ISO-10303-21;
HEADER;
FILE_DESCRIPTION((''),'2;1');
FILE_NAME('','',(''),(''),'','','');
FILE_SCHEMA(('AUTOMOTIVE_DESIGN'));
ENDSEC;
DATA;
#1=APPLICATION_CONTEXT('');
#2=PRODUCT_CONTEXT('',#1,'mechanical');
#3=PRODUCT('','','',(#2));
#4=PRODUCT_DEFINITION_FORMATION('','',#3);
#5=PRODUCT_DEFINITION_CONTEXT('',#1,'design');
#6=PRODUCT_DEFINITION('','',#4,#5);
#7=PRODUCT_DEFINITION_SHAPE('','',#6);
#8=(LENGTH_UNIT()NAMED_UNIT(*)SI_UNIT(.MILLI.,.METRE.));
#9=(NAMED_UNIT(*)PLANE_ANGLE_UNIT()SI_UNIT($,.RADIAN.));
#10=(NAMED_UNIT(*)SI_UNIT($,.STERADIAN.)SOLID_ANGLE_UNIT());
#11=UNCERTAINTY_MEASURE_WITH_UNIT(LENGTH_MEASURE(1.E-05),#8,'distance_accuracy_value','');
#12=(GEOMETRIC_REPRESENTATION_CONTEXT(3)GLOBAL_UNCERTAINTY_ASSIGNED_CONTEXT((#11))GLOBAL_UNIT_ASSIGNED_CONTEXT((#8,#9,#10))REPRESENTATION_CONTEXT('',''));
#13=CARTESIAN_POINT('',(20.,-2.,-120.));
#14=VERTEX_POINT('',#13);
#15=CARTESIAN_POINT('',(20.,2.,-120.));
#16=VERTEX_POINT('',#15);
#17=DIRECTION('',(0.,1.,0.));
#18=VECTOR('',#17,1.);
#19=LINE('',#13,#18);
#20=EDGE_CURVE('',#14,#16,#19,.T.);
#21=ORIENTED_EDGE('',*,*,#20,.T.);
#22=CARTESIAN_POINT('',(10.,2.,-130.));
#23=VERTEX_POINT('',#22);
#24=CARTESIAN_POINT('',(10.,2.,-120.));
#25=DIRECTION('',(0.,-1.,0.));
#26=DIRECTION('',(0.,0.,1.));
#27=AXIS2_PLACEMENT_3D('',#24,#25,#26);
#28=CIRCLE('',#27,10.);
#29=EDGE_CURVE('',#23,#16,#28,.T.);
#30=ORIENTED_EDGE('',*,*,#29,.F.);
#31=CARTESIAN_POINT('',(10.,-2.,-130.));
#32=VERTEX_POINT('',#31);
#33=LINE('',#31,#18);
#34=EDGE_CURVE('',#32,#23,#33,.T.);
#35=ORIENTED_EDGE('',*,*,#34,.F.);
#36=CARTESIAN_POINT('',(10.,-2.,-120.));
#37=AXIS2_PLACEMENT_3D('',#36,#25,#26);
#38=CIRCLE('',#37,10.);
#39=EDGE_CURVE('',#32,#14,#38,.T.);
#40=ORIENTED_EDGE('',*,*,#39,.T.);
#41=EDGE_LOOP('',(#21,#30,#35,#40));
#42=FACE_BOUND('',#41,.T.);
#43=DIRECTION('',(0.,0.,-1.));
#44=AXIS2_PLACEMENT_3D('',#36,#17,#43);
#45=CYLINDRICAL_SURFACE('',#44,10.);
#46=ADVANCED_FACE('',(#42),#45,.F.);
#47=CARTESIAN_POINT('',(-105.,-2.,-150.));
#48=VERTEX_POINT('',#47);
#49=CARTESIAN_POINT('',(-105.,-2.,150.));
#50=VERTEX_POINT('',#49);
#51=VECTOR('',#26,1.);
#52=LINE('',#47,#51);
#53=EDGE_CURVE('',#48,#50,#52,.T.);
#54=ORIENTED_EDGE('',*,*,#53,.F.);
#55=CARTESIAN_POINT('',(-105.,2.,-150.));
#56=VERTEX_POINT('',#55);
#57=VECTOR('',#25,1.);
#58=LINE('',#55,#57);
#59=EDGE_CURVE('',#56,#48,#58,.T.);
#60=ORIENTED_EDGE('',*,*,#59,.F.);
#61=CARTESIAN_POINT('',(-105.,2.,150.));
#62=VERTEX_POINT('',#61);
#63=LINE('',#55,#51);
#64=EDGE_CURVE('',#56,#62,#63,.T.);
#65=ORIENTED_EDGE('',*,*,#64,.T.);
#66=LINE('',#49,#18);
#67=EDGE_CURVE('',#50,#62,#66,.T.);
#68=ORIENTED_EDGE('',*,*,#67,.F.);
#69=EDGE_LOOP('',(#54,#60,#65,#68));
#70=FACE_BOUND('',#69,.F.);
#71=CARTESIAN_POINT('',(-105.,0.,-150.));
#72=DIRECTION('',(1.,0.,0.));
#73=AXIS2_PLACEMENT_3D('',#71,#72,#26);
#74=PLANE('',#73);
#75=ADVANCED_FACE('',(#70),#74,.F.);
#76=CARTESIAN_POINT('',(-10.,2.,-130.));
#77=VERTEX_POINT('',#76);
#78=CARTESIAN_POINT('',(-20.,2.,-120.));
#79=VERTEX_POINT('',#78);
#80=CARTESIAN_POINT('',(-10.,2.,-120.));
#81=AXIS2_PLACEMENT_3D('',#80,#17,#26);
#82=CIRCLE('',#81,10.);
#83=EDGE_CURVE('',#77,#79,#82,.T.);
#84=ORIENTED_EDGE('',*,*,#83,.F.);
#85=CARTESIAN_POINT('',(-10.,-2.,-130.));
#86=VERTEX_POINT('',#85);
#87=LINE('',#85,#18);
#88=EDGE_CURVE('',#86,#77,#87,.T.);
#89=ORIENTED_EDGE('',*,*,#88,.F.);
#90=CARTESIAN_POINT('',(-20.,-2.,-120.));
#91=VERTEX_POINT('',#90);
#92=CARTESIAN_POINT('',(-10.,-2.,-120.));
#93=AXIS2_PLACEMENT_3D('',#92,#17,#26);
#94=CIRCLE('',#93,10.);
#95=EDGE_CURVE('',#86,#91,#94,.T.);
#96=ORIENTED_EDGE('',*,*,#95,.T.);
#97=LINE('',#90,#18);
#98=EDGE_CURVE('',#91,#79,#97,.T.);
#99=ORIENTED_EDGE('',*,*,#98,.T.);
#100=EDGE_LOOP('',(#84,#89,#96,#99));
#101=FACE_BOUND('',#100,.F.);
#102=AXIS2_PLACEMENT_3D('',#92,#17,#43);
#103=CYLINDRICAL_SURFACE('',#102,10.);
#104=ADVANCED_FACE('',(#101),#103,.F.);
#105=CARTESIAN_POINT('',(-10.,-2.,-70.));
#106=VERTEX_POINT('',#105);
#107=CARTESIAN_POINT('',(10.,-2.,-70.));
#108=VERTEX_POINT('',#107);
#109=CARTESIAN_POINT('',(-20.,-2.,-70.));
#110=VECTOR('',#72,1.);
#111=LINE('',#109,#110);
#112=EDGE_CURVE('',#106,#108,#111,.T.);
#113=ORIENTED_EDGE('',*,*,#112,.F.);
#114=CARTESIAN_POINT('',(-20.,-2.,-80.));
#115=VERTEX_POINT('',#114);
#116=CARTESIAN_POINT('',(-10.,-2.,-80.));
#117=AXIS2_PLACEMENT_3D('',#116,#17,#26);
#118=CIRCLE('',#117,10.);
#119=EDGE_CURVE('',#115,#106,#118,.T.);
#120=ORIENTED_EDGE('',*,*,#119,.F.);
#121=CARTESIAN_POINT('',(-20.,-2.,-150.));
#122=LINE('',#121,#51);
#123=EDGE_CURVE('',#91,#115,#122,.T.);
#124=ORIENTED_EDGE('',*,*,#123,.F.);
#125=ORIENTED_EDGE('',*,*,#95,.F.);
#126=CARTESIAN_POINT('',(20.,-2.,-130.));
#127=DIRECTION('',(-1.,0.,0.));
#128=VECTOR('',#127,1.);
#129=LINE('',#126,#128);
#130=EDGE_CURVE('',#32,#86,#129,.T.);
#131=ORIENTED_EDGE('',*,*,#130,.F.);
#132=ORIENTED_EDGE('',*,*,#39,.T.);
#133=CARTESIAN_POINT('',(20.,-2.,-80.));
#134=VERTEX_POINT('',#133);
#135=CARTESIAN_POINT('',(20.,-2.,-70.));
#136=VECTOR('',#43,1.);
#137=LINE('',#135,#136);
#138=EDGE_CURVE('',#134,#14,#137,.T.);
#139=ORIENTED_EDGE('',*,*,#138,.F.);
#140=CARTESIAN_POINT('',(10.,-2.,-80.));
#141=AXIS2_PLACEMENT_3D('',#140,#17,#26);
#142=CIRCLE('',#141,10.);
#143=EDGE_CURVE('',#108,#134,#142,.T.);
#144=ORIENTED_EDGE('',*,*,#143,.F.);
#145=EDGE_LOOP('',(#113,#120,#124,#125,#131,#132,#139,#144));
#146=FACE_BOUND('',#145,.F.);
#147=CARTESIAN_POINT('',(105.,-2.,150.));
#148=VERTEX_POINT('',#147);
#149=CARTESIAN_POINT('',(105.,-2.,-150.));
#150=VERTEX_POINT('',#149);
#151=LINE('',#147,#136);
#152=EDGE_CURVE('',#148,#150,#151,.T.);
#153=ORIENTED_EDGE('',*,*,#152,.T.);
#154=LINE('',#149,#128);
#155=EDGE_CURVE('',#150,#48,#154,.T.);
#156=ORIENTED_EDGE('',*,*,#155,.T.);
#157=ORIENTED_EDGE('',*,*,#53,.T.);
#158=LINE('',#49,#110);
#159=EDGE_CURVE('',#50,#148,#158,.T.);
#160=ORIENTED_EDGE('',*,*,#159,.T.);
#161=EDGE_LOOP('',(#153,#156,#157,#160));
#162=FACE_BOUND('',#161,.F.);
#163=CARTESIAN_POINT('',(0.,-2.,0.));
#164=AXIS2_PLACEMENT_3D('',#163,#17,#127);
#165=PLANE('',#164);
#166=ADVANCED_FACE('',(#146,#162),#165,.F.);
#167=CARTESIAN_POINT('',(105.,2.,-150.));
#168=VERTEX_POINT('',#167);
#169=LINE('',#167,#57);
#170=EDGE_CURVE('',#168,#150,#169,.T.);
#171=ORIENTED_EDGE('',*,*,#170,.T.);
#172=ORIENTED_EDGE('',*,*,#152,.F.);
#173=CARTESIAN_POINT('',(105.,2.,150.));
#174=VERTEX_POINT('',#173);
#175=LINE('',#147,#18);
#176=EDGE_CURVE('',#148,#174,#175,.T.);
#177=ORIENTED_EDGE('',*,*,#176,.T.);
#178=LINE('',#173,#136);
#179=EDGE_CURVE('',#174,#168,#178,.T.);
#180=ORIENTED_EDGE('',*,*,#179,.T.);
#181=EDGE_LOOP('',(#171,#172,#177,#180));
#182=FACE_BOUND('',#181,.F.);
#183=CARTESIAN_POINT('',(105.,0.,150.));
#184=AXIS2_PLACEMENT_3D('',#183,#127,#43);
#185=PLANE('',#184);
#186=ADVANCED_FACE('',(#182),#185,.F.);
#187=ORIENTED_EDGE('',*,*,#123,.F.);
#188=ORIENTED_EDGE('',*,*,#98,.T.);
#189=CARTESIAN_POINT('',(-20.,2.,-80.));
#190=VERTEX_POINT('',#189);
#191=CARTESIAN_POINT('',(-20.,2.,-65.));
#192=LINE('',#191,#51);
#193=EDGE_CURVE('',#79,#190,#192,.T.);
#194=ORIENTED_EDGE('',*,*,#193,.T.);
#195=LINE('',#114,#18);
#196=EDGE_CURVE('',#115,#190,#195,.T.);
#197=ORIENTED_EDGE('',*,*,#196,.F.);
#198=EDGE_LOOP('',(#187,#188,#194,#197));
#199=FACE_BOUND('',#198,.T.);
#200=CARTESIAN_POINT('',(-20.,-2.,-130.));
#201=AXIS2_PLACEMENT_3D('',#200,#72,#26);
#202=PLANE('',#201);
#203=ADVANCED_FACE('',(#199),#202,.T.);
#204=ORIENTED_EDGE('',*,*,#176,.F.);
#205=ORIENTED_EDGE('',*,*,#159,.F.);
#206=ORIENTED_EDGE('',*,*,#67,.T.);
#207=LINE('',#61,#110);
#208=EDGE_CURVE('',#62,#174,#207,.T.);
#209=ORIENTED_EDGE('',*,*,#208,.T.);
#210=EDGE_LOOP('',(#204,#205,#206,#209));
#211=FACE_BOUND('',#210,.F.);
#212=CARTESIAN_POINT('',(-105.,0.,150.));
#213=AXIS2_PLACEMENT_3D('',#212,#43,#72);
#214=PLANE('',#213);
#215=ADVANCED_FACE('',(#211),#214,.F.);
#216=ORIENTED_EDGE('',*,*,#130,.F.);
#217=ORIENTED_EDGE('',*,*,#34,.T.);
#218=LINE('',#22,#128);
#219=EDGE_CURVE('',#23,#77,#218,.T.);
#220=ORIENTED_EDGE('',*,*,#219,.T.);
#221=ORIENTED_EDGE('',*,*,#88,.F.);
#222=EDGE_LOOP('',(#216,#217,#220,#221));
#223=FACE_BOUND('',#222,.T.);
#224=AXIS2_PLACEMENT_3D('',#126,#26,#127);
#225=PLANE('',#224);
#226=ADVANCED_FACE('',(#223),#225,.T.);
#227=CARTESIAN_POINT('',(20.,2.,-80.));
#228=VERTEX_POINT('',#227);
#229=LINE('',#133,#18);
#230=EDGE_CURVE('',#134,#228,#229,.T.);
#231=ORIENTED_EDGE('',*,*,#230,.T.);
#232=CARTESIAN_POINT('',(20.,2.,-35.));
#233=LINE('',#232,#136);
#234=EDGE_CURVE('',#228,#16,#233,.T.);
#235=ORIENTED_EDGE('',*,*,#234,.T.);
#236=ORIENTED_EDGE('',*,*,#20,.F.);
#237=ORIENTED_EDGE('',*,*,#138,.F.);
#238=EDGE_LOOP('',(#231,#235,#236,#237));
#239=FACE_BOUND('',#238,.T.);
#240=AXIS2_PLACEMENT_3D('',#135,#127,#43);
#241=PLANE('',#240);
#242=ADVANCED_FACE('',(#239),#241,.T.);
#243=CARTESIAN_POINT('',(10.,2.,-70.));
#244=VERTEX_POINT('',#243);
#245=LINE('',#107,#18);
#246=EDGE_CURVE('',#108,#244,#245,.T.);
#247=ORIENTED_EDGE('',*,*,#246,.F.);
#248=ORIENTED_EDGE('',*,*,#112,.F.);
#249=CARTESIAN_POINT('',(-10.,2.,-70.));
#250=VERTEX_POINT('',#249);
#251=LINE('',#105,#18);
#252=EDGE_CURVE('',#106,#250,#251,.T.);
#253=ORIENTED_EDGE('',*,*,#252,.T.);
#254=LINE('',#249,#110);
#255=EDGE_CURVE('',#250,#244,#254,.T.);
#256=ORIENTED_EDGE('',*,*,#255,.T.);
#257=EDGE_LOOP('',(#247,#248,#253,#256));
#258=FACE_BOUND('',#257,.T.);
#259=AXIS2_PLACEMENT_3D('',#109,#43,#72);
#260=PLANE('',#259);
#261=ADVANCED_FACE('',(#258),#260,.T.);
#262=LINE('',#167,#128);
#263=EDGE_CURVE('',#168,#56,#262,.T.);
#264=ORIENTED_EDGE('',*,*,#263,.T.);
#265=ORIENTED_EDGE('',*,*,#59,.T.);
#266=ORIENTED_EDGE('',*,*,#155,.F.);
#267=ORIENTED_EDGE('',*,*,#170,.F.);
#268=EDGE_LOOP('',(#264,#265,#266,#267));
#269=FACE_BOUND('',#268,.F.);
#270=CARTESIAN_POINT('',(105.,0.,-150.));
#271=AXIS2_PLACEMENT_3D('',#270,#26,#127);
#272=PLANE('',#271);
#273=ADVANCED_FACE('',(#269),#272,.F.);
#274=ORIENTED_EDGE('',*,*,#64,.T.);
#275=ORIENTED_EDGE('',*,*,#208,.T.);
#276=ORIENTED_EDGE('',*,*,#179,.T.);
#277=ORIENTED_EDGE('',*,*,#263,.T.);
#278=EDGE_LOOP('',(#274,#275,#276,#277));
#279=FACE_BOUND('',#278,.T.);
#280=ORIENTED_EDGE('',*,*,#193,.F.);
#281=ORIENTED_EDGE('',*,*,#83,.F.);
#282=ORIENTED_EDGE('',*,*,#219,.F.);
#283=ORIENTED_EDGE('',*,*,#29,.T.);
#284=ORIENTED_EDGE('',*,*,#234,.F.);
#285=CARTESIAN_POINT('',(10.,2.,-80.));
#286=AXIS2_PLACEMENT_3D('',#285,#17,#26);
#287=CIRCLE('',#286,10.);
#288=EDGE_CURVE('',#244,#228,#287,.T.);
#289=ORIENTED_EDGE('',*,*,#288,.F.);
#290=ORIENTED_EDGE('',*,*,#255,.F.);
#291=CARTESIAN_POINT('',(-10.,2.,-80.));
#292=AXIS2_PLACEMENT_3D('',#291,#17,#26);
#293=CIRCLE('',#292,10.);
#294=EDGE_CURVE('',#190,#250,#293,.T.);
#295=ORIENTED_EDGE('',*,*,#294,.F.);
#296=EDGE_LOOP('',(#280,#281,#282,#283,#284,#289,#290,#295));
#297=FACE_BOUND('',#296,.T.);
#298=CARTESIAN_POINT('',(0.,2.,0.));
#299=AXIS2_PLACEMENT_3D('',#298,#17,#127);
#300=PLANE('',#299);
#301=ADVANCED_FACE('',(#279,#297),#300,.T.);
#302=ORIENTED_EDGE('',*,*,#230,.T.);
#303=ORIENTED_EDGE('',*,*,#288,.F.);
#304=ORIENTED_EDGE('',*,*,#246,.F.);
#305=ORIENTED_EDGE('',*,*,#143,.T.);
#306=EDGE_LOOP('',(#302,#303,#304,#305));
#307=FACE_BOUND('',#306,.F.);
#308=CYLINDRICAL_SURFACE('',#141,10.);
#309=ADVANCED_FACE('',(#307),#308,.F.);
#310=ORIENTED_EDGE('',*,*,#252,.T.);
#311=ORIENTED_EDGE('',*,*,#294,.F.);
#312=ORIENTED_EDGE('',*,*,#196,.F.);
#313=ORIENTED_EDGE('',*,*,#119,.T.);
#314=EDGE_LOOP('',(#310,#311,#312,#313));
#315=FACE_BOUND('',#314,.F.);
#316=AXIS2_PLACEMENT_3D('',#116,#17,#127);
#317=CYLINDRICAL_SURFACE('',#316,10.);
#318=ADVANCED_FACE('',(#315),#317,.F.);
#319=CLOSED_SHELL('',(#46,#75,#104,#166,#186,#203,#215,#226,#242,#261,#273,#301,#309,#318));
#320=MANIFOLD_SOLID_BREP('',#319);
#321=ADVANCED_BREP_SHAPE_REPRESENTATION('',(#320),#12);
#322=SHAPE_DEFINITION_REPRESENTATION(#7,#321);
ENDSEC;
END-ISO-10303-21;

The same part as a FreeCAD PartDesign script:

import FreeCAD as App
import Part
import Sketcher

V = App.Vector
Q = App.Units.Quantity


def edges_at(feature, points):
    """Names of the edges that pass closest to the given points."""
    edges = feature.Shape.Edges
    near = lambda p: min(range(len(edges)), key=lambda i: edges[i].distToShape(Part.Vertex(*p))[0])
    return sorted({f"Edge{near(p) + 1}" for p in points})

doc = App.newDocument("Part")
body = doc.addObject("PartDesign::Body", "Body")

# Sketch on XZ plane
sketch1 = doc.addObject("Sketcher::SketchObject", "Sketch")
body.addObject(sketch1)
sketch1.AttachmentSupport = (doc.XZ_Plane, [""])
sketch1.MapMode = "FlatFace"
sketch1.addGeometry(Part.LineSegment(V(-105, -150, 0), V(-105, 150, 0)), False)
sketch1.addGeometry(Part.LineSegment(V(-105, 150, 0), V(105, 150, 0)), False)
sketch1.addGeometry(Part.LineSegment(V(105, 150, 0), V(105, -150, 0)), False)
sketch1.addGeometry(Part.LineSegment(V(105, -150, 0), V(-105, -150, 0)), False)
sketch1.addConstraint(Sketcher.Constraint("Coincident", 0, 2, 1, 1))
sketch1.addConstraint(Sketcher.Constraint("Coincident", 1, 2, 2, 1))
sketch1.addConstraint(Sketcher.Constraint("Coincident", 2, 2, 3, 1))
sketch1.addConstraint(Sketcher.Constraint("Coincident", 3, 2, 0, 1))
sketch1.addConstraint(Sketcher.Constraint("Vertical", 0))
sketch1.addConstraint(Sketcher.Constraint("Horizontal", 1))
sketch1.addConstraint(Sketcher.Constraint("Vertical", 2))
sketch1.addConstraint(Sketcher.Constraint("Horizontal", 3))
sketch1.addConstraint(Sketcher.Constraint("Symmetric", 0, 2, 2, 2, -1, 1))
sketch1.addConstraint(Sketcher.Constraint("DistanceX", 1, 1, 1, 2, Q("210 mm")))
sketch1.addConstraint(Sketcher.Constraint("DistanceY", 0, 1, 0, 2, Q("300 mm")))
pad1 = doc.addObject("PartDesign::Pad", "Pad")
body.addObject(pad1)
pad1.Profile = sketch1
pad1.Length = 4
pad1.Midplane = True

# Sketch on XZ plane
sketch2 = doc.addObject("Sketcher::SketchObject", "Sketch001")
body.addObject(sketch2)
sketch2.AttachmentSupport = (doc.XZ_Plane, [""])
sketch2.MapMode = "FlatFace"
sketch2.AttachmentOffset = App.Placement(V(0, 0, 2), App.Rotation())
sketch2.addGeometry(Part.LineSegment(V(-20, -130, 0), V(20, -130, 0)), False)
sketch2.addGeometry(Part.LineSegment(V(20, -130, 0), V(20, -70, 0)), False)
sketch2.addGeometry(Part.LineSegment(V(20, -70, 0), V(-20, -70, 0)), False)
sketch2.addGeometry(Part.LineSegment(V(-20, -70, 0), V(-20, -130, 0)), False)
sketch2.addConstraint(Sketcher.Constraint("Coincident", 0, 2, 1, 1))
sketch2.addConstraint(Sketcher.Constraint("Coincident", 1, 2, 2, 1))
sketch2.addConstraint(Sketcher.Constraint("Coincident", 2, 2, 3, 1))
sketch2.addConstraint(Sketcher.Constraint("Coincident", 3, 2, 0, 1))
sketch2.addConstraint(Sketcher.Constraint("Horizontal", 0))
sketch2.addConstraint(Sketcher.Constraint("Vertical", 1))
sketch2.addConstraint(Sketcher.Constraint("Horizontal", 2))
sketch2.addConstraint(Sketcher.Constraint("Vertical", 3))
sketch2.addConstraint(Sketcher.Constraint("DistanceX", 0, 1, 0, 2, Q("40 mm")))
sketch2.addConstraint(Sketcher.Constraint("DistanceX", -1, 1, 0, 2, Q("20 mm")))
sketch2.addConstraint(Sketcher.Constraint("DistanceY", 1, 1, 1, 2, Q("60 mm")))
sketch2.addConstraint(Sketcher.Constraint("DistanceY", 0, 2, -1, 1, Q("130 mm")))
pocket1 = doc.addObject("PartDesign::Pocket", "Pocket")
body.addObject(pocket1)
pocket1.Profile = sketch2
pocket1.Type = "UpToFirst"
doc.recompute()

fillet = doc.addObject("PartDesign::Fillet", "Fillet")
body.addObject(fillet)
fillet.Base = (pocket1, edges_at(pocket1, [
    (20, 0, -130),
    (-20, 0, -130),
    (-20, 0, -70),
    (20, 0, -70),
]))
fillet.Radius = 10

doc.recompute()
